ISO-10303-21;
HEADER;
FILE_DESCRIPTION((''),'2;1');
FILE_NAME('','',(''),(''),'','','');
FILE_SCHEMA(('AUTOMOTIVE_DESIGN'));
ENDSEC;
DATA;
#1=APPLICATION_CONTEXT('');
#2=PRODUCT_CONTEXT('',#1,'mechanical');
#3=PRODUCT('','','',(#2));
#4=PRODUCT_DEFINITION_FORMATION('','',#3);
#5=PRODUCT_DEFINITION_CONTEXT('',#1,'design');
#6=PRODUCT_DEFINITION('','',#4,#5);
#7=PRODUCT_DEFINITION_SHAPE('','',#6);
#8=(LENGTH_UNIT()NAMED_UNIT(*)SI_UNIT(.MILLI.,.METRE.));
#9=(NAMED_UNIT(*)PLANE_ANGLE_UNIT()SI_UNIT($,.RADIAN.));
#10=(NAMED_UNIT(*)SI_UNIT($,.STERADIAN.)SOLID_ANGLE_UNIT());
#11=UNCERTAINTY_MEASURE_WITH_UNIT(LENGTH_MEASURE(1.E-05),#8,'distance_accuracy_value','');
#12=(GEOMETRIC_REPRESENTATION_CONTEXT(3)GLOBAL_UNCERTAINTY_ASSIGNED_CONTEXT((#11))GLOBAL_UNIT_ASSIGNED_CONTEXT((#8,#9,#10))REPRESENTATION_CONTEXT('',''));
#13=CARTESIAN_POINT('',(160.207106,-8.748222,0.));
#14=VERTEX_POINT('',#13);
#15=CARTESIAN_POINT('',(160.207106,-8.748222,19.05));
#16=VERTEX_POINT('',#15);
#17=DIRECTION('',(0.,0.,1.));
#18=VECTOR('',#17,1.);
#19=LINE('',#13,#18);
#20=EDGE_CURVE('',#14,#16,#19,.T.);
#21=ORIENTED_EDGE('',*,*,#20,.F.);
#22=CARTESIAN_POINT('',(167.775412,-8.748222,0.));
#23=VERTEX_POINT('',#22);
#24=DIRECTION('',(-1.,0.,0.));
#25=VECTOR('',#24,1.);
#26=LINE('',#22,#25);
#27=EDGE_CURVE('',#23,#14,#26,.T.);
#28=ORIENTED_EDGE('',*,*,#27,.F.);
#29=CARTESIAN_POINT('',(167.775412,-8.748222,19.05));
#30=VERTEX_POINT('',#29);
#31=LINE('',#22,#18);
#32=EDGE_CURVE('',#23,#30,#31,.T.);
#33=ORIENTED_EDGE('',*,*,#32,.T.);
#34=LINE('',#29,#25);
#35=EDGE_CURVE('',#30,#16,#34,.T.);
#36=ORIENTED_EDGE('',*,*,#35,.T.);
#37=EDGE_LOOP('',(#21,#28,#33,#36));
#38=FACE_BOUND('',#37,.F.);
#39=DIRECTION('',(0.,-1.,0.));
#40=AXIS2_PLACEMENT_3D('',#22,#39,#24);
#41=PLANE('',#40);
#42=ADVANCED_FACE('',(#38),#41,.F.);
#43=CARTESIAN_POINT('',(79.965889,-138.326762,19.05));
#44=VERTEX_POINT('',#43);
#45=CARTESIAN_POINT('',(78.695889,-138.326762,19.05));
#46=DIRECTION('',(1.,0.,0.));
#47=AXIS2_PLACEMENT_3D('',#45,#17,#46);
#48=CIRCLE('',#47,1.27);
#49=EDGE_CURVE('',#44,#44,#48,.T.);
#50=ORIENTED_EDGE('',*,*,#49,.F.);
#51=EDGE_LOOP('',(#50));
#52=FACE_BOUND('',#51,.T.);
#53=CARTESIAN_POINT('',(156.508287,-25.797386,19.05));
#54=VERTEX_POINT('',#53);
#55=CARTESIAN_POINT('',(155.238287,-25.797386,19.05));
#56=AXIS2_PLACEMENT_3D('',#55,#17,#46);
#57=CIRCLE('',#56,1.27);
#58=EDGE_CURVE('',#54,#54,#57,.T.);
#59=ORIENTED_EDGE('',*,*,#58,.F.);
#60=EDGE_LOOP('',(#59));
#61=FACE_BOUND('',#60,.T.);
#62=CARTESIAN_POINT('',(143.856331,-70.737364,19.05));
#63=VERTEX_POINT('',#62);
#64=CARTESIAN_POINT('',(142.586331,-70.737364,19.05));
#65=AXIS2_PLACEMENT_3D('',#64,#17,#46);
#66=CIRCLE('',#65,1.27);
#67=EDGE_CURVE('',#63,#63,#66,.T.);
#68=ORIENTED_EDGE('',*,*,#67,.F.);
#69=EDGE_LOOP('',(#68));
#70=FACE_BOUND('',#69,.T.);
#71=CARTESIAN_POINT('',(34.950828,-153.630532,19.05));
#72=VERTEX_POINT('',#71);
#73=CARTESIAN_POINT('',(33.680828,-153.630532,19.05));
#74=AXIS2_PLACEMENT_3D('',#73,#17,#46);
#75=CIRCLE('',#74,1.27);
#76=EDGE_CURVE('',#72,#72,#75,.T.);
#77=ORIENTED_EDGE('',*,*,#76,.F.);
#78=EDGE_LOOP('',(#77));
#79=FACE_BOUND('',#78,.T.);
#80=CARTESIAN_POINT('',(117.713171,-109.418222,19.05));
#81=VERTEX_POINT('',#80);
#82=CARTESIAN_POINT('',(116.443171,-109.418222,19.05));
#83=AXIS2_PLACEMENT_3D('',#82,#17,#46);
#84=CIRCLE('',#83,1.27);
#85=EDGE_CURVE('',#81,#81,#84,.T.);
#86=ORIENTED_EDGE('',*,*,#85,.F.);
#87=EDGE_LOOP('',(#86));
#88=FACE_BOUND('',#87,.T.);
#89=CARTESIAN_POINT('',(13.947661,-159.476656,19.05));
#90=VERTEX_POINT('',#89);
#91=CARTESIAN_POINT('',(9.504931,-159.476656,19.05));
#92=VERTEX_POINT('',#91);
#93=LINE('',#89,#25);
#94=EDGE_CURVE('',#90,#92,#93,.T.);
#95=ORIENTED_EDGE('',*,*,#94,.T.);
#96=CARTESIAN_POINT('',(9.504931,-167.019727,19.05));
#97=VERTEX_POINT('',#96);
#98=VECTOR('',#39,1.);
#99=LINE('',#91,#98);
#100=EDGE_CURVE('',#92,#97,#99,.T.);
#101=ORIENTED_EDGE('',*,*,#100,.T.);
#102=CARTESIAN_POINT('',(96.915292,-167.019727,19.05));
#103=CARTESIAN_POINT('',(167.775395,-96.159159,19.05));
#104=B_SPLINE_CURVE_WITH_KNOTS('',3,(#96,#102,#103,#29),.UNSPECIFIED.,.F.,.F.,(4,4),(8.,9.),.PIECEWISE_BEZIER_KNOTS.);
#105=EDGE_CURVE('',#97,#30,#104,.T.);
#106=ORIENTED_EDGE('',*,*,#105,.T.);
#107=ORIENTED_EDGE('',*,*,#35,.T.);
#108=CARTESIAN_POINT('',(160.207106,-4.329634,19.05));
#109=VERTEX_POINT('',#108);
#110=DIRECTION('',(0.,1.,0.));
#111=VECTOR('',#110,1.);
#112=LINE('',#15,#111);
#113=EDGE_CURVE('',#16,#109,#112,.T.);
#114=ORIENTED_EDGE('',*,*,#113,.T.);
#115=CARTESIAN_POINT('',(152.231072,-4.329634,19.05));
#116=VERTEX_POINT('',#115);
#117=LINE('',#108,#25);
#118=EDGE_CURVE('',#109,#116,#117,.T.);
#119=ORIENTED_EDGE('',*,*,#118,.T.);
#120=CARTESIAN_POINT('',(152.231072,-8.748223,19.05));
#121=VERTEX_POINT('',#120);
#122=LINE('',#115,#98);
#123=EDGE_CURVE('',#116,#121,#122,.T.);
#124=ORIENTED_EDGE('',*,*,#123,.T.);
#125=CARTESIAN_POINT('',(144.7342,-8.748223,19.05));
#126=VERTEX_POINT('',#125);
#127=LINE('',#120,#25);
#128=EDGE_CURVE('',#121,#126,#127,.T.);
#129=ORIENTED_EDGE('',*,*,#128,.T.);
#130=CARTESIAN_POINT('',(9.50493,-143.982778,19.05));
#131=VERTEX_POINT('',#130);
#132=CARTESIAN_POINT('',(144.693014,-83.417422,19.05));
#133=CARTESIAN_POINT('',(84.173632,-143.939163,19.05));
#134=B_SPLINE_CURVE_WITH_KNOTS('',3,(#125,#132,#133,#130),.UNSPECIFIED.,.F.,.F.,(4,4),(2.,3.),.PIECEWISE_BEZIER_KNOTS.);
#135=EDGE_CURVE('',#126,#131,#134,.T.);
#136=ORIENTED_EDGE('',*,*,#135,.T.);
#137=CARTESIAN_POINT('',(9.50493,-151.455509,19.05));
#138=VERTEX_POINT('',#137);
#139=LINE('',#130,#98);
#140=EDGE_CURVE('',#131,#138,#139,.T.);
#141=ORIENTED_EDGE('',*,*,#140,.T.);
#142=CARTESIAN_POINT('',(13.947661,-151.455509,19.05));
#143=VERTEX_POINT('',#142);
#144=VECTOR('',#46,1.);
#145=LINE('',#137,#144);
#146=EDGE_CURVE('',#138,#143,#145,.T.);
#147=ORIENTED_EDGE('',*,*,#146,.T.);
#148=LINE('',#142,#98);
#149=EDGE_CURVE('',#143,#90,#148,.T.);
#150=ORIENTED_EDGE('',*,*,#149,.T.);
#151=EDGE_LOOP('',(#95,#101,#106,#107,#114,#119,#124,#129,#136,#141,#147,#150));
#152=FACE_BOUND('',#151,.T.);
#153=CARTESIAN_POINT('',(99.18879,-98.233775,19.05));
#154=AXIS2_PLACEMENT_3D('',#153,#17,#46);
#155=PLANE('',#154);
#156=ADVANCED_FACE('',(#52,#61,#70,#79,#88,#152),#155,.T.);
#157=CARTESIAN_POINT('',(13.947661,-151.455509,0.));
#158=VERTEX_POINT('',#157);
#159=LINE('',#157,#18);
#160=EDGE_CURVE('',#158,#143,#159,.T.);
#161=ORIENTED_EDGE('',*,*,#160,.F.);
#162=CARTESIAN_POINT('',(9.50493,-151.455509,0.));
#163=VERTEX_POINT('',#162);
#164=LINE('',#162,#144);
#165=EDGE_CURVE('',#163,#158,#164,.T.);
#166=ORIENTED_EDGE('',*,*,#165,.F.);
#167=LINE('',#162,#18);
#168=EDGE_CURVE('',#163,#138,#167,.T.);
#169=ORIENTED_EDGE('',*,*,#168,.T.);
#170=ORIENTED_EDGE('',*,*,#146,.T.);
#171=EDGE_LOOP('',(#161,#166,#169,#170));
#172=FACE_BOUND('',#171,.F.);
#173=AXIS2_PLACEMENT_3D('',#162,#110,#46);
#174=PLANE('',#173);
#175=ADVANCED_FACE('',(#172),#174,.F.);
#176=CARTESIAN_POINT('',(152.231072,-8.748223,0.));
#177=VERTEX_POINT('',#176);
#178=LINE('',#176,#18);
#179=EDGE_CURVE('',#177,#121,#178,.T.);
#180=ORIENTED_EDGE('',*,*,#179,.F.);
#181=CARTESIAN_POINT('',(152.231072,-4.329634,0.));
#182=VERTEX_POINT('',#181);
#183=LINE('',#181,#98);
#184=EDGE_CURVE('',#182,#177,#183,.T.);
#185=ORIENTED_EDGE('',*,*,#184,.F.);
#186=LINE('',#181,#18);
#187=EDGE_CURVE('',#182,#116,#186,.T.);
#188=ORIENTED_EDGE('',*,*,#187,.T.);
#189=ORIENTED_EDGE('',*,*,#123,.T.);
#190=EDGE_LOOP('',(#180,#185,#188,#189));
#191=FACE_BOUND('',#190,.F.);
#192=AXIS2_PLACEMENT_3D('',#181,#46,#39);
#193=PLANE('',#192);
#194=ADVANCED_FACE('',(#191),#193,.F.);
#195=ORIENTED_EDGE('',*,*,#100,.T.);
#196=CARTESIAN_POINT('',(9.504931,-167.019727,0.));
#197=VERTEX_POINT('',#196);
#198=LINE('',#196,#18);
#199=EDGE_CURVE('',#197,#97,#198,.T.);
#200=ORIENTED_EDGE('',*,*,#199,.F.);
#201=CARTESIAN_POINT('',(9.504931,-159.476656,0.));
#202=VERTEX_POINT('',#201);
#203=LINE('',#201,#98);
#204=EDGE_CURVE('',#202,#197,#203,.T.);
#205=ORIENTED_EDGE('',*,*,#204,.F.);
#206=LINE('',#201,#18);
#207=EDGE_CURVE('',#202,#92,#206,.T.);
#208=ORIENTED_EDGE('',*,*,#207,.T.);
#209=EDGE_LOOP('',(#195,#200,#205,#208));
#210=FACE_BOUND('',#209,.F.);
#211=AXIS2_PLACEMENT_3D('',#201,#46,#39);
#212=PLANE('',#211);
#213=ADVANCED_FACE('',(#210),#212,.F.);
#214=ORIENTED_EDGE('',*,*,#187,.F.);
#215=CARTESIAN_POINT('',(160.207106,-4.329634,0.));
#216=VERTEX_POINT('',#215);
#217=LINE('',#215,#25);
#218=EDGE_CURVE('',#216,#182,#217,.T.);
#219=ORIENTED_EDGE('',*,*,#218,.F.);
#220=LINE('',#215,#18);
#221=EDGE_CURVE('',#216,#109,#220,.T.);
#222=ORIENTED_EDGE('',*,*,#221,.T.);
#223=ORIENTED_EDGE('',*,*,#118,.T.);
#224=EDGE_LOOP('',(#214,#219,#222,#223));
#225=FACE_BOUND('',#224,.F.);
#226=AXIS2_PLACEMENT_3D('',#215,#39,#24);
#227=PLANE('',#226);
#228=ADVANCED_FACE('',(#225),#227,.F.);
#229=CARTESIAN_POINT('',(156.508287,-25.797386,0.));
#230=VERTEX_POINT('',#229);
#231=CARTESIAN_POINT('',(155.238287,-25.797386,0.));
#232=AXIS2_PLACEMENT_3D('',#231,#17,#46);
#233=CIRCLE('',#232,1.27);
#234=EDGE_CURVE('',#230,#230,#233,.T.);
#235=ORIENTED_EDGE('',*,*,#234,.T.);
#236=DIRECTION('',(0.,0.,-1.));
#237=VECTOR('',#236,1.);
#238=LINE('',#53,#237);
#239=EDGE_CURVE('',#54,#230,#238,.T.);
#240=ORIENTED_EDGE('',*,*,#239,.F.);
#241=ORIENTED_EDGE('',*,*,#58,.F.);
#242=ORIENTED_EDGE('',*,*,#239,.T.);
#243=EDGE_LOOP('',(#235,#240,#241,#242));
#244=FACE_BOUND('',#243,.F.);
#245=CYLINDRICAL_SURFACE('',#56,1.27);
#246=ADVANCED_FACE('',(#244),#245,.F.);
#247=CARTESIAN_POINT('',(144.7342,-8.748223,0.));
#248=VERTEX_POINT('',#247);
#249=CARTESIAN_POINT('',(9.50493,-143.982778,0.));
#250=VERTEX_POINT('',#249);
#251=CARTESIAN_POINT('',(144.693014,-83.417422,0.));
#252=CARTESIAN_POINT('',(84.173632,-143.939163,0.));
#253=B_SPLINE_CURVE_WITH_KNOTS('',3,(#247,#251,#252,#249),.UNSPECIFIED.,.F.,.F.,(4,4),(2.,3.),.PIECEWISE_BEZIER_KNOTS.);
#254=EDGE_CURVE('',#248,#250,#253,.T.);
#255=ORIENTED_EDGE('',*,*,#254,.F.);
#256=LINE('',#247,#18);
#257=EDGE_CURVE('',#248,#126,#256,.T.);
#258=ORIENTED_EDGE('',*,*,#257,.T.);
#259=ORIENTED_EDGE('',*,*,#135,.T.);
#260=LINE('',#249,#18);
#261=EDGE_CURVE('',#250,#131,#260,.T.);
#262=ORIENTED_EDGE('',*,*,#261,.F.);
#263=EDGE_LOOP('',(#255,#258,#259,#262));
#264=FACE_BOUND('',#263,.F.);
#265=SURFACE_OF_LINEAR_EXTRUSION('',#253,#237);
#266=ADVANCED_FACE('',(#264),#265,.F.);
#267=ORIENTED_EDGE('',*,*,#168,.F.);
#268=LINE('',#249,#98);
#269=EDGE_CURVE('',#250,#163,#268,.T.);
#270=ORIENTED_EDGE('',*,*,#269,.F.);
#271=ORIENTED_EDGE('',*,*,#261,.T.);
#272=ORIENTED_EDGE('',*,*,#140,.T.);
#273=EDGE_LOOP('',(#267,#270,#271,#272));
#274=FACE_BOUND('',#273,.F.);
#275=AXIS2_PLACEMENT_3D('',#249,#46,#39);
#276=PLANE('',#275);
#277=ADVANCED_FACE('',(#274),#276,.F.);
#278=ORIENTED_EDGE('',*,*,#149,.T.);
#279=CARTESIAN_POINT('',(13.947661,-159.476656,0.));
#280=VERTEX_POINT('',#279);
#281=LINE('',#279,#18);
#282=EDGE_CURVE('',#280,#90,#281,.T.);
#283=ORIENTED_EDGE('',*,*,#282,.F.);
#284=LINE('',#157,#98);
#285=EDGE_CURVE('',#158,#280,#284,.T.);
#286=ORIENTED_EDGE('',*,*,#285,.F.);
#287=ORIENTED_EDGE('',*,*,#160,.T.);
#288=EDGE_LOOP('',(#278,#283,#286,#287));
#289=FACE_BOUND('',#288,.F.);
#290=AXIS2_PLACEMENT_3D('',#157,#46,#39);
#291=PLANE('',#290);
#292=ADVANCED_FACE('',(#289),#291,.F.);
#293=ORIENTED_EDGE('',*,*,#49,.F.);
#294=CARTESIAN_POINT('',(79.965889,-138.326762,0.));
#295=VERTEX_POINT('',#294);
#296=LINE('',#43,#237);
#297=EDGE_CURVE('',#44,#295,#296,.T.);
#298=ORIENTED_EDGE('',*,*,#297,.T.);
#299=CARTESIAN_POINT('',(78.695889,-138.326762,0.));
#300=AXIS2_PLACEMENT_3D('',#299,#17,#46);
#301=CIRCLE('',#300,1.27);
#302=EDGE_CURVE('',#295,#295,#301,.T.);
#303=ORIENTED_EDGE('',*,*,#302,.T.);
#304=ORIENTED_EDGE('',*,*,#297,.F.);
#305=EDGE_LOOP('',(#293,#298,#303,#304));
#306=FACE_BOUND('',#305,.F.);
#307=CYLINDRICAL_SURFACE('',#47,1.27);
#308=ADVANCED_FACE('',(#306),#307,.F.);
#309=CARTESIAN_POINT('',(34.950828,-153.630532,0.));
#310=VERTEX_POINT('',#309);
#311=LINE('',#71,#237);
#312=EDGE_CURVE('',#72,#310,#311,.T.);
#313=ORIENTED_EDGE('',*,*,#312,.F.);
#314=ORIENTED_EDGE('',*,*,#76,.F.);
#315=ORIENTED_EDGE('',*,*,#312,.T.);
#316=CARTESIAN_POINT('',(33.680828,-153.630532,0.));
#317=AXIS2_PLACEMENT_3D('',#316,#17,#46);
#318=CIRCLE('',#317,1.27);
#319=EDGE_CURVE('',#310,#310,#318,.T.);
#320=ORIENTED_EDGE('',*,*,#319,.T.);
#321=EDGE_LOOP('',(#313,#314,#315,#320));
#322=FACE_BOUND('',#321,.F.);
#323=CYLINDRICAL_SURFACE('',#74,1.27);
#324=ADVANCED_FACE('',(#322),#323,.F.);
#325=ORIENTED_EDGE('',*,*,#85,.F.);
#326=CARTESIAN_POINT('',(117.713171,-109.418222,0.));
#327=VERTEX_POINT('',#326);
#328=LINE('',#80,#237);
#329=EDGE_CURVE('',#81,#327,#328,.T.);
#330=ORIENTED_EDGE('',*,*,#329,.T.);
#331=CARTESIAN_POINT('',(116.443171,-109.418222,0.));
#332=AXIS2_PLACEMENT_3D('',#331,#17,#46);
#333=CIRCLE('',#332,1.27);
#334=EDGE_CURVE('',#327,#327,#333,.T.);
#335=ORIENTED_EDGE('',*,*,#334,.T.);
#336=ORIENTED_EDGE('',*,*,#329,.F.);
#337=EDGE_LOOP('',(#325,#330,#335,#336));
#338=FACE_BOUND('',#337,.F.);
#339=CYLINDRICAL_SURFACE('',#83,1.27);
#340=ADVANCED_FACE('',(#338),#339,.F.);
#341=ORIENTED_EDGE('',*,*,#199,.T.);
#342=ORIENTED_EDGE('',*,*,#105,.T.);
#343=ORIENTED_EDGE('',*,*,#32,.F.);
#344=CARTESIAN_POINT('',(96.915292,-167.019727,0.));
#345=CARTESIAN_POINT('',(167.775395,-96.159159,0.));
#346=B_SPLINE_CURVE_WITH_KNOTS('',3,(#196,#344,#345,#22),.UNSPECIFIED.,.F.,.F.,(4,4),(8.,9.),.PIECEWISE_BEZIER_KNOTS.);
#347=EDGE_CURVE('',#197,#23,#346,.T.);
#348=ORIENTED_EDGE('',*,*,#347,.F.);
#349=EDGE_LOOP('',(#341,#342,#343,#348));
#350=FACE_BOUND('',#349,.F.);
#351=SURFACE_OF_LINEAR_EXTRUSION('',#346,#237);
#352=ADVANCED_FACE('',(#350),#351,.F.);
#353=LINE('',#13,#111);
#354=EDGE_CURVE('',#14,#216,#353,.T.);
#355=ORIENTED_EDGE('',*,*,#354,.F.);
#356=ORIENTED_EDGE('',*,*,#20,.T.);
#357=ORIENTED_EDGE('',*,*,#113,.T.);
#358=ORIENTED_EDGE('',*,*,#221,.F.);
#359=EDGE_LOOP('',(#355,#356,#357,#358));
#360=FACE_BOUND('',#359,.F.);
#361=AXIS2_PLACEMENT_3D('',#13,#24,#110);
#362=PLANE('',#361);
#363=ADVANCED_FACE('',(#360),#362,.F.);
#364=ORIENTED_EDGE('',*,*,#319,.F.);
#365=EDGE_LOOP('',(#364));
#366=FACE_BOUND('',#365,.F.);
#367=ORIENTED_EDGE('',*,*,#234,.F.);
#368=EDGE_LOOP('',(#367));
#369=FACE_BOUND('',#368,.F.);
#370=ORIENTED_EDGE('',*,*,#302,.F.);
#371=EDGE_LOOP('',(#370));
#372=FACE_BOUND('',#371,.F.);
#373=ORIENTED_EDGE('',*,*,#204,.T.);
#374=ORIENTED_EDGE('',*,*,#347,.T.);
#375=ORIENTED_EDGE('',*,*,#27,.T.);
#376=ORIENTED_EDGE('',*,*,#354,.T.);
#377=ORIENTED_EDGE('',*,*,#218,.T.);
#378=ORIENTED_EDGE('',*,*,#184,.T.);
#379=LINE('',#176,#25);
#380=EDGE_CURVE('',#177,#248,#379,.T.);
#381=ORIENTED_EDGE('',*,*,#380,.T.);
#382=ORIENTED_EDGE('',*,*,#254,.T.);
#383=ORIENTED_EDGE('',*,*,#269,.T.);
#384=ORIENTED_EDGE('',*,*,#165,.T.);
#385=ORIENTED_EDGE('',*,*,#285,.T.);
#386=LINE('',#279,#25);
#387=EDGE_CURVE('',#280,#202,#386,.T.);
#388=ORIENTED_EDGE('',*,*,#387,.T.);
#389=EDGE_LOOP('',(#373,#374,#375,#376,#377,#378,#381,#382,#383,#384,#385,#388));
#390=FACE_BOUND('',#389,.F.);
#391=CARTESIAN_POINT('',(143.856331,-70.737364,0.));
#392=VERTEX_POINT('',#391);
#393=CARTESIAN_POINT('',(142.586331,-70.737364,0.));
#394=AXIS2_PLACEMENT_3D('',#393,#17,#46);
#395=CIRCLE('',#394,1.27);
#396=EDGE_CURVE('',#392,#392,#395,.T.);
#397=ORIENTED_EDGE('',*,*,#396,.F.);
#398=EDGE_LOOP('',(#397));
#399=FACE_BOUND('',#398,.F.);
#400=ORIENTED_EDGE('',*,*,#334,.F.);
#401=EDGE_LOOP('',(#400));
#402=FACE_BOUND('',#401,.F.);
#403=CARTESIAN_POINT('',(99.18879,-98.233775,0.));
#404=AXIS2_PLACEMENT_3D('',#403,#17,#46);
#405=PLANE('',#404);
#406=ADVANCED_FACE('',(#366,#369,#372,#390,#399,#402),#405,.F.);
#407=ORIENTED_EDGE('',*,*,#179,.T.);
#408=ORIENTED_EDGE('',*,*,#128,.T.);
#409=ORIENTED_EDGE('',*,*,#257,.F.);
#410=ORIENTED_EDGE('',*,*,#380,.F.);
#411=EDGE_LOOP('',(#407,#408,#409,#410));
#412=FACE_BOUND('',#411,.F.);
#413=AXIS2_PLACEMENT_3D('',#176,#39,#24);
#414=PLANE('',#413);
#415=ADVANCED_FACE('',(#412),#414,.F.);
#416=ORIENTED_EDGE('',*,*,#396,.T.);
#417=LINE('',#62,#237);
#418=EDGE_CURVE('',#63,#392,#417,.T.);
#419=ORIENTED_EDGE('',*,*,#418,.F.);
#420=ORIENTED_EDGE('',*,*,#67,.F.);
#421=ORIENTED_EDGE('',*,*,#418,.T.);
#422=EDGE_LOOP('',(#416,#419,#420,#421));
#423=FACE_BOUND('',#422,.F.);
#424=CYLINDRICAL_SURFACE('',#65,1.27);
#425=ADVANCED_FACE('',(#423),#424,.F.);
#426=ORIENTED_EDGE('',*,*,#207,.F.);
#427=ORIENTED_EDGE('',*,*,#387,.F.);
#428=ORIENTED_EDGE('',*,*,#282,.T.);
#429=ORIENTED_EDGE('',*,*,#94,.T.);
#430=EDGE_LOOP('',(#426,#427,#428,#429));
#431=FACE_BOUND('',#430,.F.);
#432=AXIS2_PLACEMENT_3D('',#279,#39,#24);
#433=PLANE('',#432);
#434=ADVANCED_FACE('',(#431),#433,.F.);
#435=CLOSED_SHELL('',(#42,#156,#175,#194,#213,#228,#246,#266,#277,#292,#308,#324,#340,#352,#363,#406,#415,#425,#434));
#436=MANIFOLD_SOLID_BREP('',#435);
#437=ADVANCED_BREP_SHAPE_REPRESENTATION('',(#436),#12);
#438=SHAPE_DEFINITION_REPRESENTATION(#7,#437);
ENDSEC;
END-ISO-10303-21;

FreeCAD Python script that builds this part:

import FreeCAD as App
import Part
import Sketcher

V = App.Vector
Q = App.Units.Quantity

doc = App.newDocument("Part")
body = doc.addObject("PartDesign::Body", "Body")

sketch1 = doc.addObject("Sketcher::SketchObject", "Sketch")
body.addObject(sketch1)
sketch1.AttachmentSupport = (doc.XY_Plane, [""])
sketch1.MapMode = "FlatFace"
sketch1.addGeometry([
    Part.LineSegment(V(152.231072, -4.329634, 0), V(152.231072, -8.748223, 0)),
    Part.LineSegment(V(152.231072, -8.748223, 0), V(144.7342, -8.748223, 0)),
    Part.BSplineCurve([V(144.7342, -8.748223, 0), V(144.693014, -83.417422, 0), V(84.173632, -143.939163, 0), V(9.50493, -143.982778, 0)], [4, 4], [2, 3], False, 3, [1, 1, 1, 1], False),
    Part.LineSegment(V(9.50493, -143.982778, 0), V(9.50493, -151.455509, 0)),
    Part.LineSegment(V(9.50493, -151.455509, 0), V(13.947661, -151.455509, 0)),
    Part.LineSegment(V(13.947661, -151.455509, 0), V(13.947661, -159.476656, 0)),
    Part.LineSegment(V(13.947661, -159.476656, 0), V(9.504931, -159.476656, 0)),
    Part.LineSegment(V(9.504931, -159.476656, 0), V(9.504931, -167.019727, 0)),
    Part.BSplineCurve([V(9.504931, -167.019727, 0), V(96.915292, -167.019727, 0), V(167.775395, -96.159159, 0), V(167.775412, -8.748222, 0)], [4, 4], [8, 9], False, 3, [1, 1, 1, 1], False),
    Part.LineSegment(V(167.775412, -8.748222, 0), V(160.207106, -8.748222, 0)),
    Part.LineSegment(V(160.207106, -8.748222, 0), V(160.207106, -4.329634, 0)),
    Part.LineSegment(V(160.207106, -4.329634, 0), V(152.231072, -4.329634, 0)),
], False)
sketch1.addConstraint([
    Sketcher.Constraint("Block", 2),
    Sketcher.Constraint("Block", 8),
    Sketcher.Constraint("Coincident", 0, 2, 1, 1),
    Sketcher.Constraint("Coincident", 1, 2, 2, 1),
    Sketcher.Constraint("Coincident", 2, 2, 3, 1),
    Sketcher.Constraint("Coincident", 3, 2, 4, 1),
    Sketcher.Constraint("Coincident", 4, 2, 5, 1),
    Sketcher.Constraint("Coincident", 5, 2, 6, 1),
    Sketcher.Constraint("Coincident", 6, 2, 7, 1),
    Sketcher.Constraint("Coincident", 7, 2, 8, 1),
    Sketcher.Constraint("Coincident", 8, 2, 9, 1),
    Sketcher.Constraint("Coincident", 9, 2, 10, 1),
    Sketcher.Constraint("Coincident", 10, 2, 11, 1),
    Sketcher.Constraint("Coincident", 11, 2, 0, 1),
    Sketcher.Constraint("Vertical", 0),
    Sketcher.Constraint("Horizontal", 1),
    Sketcher.Constraint("Vertical", 3),
    Sketcher.Constraint("Horizontal", 4),
    Sketcher.Constraint("Vertical", 5),
    Sketcher.Constraint("Horizontal", 6),
    Sketcher.Constraint("Vertical", 7),
    Sketcher.Constraint("Horizontal", 9),
    Sketcher.Constraint("Vertical", 10),
    Sketcher.Constraint("Horizontal", 11),
    Sketcher.Constraint("DistanceX", 4, 1, 4, 2, Q("4.442732 mm")),
    Sketcher.Constraint("DistanceY", 0, 2, 0, 1, Q("4.418589 mm")),
    Sketcher.Constraint("DistanceY", 3, 2, 3, 1, Q("7.472731 mm")),
    Sketcher.Constraint("DistanceY", 7, 2, 7, 1, Q("7.543071 mm")),
    Sketcher.Constraint("DistanceX", 1, 2, 1, 1, Q("7.496872 mm")),
    Sketcher.Constraint("DistanceX", 9, 2, 9, 1, Q("7.568306 mm")),
])
pad1 = doc.addObject("PartDesign::Pad", "Pad")
body.addObject(pad1)
pad1.Profile = sketch1
pad1.Length = Q("0.75 in")

sketch2 = doc.addObject("Sketcher::SketchObject", "Sketch001")
body.addObject(sketch2)
sketch2.AttachmentSupport = (doc.XY_Plane, [""])
sketch2.MapMode = "FlatFace"
sketch2.AttachmentOffset = App.Placement(V(0, 0, 0.75 * 25.4), App.Rotation())
sketch2.addGeometry([
    Part.Circle(V(116.4, -109.4, 0), V(0, 0, 1), 1.3),
    Part.Circle(V(78.7, -138.3, 0), V(0, 0, 1), 1.3),
    Part.Circle(V(33.7, -153.6, 0), V(0, 0, 1), 1.3),
    Part.Circle(V(142.6, -70.7, 0), V(0, 0, 1), 1.3),
    Part.Circle(V(155.2, -25.8, 0), V(0, 0, 1), 1.3),
], False)
sketch2.addConstraint([
    Sketcher.Constraint("Equal", 0, 1),
    Sketcher.Constraint("Equal", 1, 2),
    Sketcher.Constraint("Equal", 2, 3),
    Sketcher.Constraint("Equal", 3, 4),
    Sketcher.Constraint("Diameter", 0, Q("0.1 in")),
    Sketcher.Constraint("DistanceY", 1, 3, 3, 3, Q("2.6609999 in")),
    Sketcher.Constraint("DistanceX", 1, 3, 4, 3, Q("76.542398 mm")),
    Sketcher.Constraint("DistanceX", -1, 1, 0, 3, Q("116.443171 mm")),
    Sketcher.Constraint("DistanceX", -1, 1, 1, 3, Q("78.695889 mm")),
    Sketcher.Constraint("DistanceX", -1, 1, 2, 3, Q("33.680828 mm")),
    Sketcher.Constraint("DistanceX", -1, 1, 3, 3, Q("142.586331 mm")),
    Sketcher.Constraint("DistanceY", 1, 3, 0, 3, Q("28.90854 mm")),
    Sketcher.Constraint("DistanceY", 2, 3, 1, 3, Q("15.30377 mm")),
    Sketcher.Constraint("DistanceY", 0, 3, -1, 1, Q("109.418222 mm")),
    Sketcher.Constraint("DistanceY", 4, 3, -1, 1, Q("25.797386 mm")),
])
pocket1 = doc.addObject("PartDesign::Pocket", "Pocket")
body.addObject(pocket1)
pocket1.Profile = sketch2
pocket1.Length = Q("0.75 in")

doc.recompute()
